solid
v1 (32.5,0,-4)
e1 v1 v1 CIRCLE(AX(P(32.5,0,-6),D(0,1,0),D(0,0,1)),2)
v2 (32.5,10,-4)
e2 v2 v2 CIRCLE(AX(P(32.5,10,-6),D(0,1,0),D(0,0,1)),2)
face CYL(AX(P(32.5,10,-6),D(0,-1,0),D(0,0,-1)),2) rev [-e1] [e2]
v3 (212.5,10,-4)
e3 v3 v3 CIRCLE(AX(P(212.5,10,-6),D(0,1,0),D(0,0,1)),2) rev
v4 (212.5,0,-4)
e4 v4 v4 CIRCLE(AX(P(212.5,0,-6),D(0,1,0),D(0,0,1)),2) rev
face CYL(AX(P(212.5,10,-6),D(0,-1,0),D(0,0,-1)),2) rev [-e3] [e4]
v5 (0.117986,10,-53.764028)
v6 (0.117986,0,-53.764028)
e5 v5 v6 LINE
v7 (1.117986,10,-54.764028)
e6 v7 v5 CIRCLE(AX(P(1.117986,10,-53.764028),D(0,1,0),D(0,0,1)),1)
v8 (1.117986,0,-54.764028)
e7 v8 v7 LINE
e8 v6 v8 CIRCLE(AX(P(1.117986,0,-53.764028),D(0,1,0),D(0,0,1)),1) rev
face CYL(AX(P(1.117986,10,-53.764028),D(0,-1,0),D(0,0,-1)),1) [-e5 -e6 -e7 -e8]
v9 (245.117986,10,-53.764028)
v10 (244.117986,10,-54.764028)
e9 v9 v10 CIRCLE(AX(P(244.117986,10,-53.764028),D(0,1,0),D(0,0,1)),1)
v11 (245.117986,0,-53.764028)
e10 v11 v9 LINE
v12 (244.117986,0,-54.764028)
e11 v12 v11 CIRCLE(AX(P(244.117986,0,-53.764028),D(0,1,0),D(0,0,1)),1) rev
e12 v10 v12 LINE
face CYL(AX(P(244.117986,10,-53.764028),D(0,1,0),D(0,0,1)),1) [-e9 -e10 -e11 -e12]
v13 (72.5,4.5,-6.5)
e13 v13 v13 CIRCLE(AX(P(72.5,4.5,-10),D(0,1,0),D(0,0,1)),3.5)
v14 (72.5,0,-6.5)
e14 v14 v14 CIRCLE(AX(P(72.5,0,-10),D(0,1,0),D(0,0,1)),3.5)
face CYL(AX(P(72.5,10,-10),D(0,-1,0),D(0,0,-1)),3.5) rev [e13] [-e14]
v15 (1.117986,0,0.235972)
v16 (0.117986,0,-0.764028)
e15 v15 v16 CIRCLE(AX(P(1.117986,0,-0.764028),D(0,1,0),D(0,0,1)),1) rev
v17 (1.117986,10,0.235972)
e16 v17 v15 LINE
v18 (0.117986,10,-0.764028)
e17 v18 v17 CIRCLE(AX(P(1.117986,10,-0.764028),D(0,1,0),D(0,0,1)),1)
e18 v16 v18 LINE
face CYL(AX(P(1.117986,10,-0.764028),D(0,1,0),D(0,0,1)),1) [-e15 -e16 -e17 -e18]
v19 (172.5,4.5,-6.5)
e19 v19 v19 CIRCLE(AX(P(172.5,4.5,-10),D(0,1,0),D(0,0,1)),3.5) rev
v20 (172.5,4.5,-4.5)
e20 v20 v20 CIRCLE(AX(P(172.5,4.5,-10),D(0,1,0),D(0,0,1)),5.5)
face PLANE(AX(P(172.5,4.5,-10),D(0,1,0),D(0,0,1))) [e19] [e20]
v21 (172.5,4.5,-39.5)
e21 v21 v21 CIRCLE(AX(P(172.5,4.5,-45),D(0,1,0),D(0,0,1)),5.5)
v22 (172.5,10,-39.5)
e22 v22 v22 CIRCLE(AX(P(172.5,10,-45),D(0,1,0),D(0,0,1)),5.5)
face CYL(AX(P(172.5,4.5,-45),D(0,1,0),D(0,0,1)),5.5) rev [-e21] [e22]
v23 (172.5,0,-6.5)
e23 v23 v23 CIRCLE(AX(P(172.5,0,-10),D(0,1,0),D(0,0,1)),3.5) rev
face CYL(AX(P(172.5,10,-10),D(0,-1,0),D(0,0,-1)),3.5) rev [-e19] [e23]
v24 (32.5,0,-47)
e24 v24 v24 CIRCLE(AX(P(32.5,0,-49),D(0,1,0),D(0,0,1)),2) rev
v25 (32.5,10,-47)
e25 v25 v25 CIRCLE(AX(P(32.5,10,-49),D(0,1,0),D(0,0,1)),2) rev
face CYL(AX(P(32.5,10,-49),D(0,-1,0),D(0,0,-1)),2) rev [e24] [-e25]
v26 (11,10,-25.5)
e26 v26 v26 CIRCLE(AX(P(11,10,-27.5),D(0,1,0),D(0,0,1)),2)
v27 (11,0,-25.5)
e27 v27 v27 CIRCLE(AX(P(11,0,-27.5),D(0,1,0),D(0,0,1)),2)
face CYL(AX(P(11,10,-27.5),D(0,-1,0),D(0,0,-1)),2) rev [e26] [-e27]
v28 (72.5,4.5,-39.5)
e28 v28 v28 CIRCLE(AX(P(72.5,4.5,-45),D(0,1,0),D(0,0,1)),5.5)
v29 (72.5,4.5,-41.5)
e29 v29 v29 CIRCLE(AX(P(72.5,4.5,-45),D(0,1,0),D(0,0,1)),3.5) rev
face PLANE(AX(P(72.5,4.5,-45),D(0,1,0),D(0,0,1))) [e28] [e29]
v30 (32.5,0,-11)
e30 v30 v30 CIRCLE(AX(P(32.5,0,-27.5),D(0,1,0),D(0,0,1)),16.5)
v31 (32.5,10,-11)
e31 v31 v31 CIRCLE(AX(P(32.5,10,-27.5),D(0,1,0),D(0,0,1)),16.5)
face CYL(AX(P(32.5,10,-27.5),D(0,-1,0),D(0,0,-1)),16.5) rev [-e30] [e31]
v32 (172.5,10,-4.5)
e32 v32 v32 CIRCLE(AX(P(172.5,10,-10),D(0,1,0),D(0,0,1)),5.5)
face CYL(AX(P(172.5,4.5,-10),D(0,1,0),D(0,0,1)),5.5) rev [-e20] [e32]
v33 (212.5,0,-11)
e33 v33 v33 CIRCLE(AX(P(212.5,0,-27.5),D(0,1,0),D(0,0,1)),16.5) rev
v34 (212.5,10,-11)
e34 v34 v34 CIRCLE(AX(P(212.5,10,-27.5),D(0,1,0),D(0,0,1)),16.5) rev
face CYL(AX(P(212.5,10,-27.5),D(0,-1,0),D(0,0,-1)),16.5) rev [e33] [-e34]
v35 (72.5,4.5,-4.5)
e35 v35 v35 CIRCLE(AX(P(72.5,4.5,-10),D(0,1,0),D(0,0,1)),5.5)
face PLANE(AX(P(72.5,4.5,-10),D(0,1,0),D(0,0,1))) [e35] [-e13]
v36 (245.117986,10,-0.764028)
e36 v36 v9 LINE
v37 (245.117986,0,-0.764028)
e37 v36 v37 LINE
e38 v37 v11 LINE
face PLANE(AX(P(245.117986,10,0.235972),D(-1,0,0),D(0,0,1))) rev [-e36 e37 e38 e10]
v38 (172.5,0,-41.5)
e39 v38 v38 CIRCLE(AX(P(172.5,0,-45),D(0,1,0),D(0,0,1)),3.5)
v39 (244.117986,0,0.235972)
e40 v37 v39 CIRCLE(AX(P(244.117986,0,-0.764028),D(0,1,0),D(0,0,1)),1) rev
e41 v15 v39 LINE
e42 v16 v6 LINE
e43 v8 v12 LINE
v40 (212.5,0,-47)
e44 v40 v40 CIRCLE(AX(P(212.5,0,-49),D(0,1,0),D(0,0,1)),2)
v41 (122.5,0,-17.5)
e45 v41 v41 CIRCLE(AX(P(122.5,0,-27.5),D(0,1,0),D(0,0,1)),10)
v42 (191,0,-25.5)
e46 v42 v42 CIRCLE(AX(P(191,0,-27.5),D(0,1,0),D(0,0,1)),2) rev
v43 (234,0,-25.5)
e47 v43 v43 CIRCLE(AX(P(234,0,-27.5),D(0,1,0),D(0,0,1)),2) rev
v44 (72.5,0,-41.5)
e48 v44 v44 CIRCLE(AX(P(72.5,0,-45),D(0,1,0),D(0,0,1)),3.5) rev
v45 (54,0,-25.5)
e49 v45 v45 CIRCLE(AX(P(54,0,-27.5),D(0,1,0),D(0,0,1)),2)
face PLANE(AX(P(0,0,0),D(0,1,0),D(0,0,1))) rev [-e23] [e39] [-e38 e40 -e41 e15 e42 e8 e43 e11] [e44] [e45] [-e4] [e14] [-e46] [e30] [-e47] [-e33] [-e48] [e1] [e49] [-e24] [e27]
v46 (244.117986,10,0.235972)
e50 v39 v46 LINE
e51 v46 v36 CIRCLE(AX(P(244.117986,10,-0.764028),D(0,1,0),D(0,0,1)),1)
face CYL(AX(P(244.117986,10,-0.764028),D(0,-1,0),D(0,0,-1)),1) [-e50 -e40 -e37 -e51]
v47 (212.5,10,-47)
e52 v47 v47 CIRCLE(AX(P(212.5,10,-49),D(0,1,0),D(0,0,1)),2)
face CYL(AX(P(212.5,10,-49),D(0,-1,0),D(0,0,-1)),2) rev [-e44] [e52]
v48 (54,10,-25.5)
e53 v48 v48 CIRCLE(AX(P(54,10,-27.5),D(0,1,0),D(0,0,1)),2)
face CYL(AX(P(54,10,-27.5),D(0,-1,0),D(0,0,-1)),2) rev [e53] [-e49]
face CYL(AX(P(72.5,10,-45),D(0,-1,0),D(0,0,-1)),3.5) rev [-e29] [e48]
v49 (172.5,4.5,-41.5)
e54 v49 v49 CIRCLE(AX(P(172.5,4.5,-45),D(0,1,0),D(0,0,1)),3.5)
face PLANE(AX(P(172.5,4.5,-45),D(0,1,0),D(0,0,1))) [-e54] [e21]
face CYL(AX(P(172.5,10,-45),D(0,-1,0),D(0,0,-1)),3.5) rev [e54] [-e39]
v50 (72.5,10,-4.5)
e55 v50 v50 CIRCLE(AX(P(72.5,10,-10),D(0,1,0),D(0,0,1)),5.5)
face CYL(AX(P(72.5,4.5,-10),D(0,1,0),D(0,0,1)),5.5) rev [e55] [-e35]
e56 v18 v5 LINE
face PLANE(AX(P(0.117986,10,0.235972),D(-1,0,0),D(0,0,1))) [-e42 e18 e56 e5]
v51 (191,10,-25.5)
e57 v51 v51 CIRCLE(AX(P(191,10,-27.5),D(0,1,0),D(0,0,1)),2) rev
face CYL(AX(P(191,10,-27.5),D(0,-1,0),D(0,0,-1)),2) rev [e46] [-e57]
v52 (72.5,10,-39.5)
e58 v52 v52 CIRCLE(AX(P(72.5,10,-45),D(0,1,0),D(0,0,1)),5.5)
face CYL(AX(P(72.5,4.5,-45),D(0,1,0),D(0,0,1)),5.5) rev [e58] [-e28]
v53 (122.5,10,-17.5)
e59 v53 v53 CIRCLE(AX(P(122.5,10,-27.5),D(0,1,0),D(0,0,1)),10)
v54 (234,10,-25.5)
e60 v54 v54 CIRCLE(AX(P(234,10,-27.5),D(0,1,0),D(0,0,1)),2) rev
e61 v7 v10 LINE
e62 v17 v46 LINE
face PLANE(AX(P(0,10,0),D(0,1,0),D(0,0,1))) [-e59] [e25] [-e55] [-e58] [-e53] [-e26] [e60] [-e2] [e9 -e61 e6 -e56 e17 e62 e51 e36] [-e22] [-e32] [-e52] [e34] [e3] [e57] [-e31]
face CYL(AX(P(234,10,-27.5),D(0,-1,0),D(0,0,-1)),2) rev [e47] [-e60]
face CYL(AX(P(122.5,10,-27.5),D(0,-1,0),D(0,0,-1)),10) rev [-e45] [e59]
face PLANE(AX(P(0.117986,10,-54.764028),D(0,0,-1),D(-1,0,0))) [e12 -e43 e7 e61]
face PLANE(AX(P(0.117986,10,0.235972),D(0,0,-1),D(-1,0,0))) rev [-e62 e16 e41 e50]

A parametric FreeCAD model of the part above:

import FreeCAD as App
import Part
import Sketcher
from FreeCAD import Vector


def edges_at(feature, points):
    """Names of the edges that pass closest to the given points."""
    edges = feature.Shape.Edges
    near = lambda p: min(range(len(edges)), key=lambda i: edges[i].distToShape(Part.Vertex(*p))[0])
    return sorted({f"Edge{near(p) + 1}" for p in points})


def add_polygon(sketch, points):
    """Adds a closed chain of lines whose ends are joined by coincident constraints."""
    first, n = sketch.GeometryCount, len(points)
    for a, b in zip(points, points[1:] + points[:1]):
        sketch.addGeometry(Part.LineSegment(App.Vector(*a, 0), App.Vector(*b, 0)), False)
    for i in range(n):
        sketch.addConstraint(Sketcher.Constraint("Coincident", first + i, 2, first + (i + 1) % n, 1))

doc = App.newDocument("Part")
body = doc.addObject("PartDesign::Body", "Body")

# Sketch on XZ plane
sketch1 = body.newObject("Sketcher::SketchObject", "Sketch")
sketch1.AttachmentSupport = (doc.getObject("XZ_Plane"), [""])
sketch1.MapMode = "FlatFace"
add_polygon(sketch1, [(0.1, -54.8), (0.1, 0.2), (245.1, 0.2), (245.1, -54.8)])  # lines 0-3
sketch1.addGeometry(Part.Circle(Vector(32.5, -6, 0), Vector(0, 0, 1), 2), False)  # 4
sketch1.addGeometry(Part.Circle(Vector(72.5, -10, 0), Vector(0, 0, 1), 3.5), False)  # 5
sketch1.addGeometry(Part.Circle(Vector(172.5, -10, 0), Vector(0, 0, 1), 3.5), False)  # 6
sketch1.addGeometry(Part.Circle(Vector(212.5, -6, 0), Vector(0, 0, 1), 2), False)  # 7
sketch1.addGeometry(Part.Circle(Vector(11, -27.5, 0), Vector(0, 0, 1), 2), False)  # 8
sketch1.addGeometry(Part.Circle(Vector(32.5, -27.5, 0), Vector(0, 0, 1), 16.5), False)  # 9
sketch1.addGeometry(Part.Circle(Vector(54, -27.5, 0), Vector(0, 0, 1), 2), False)  # 10
sketch1.addGeometry(Part.Circle(Vector(32.5, -49, 0), Vector(0, 0, 1), 2), False)  # 11
sketch1.addGeometry(Part.Circle(Vector(72.5, -45, 0), Vector(0, 0, 1), 3.5), False)  # 12
sketch1.addGeometry(Part.Circle(Vector(122.5, -27.5, 0), Vector(0, 0, 1), 10), False)  # 13
sketch1.addGeometry(Part.Circle(Vector(191, -27.5, 0), Vector(0, 0, 1), 2), False)  # 14
sketch1.addGeometry(Part.Circle(Vector(212.5, -27.5, 0), Vector(0, 0, 1), 16.5), False)  # 15
sketch1.addGeometry(Part.Circle(Vector(234, -27.5, 0), Vector(0, 0, 1), 2), False)  # 16
sketch1.addGeometry(Part.Circle(Vector(172.5, -45, 0), Vector(0, 0, 1), 3.5), False)  # 17
sketch1.addGeometry(Part.Circle(Vector(212.5, -49, 0), Vector(0, 0, 1), 2), False)  # 18
sketch1.addConstraint(Sketcher.Constraint("Vertical", 0))
sketch1.addConstraint(Sketcher.Constraint("Horizontal", 1))
sketch1.addConstraint(Sketcher.Constraint("Vertical", 2))
sketch1.addConstraint(Sketcher.Constraint("Horizontal", 3))
sketch1.addConstraint(Sketcher.Constraint("Equal", 5, 6))
sketch1.addConstraint(Sketcher.Constraint("Equal", 4, 7))
sketch1.addConstraint(Sketcher.Constraint("Equal", 7, 8))
sketch1.addConstraint(Sketcher.Constraint("Equal", 8, 10))
sketch1.addConstraint(Sketcher.Constraint("Equal", 10, 11))
sketch1.addConstraint(Sketcher.Constraint("Equal", 6, 12))
sketch1.addConstraint(Sketcher.Constraint("Equal", 11, 14))
sketch1.addConstraint(Sketcher.Constraint("Equal", 9, 15))
sketch1.addConstraint(Sketcher.Constraint("Equal", 14, 16))
sketch1.addConstraint(Sketcher.Constraint("Equal", 12, 17))
sketch1.addConstraint(Sketcher.Constraint("Equal", 16, 18))
sketch1.addConstraint(Sketcher.Constraint("Horizontal", 5, 3, 6, 3))
sketch1.addConstraint(Sketcher.Constraint("Horizontal", 4, 3, 7, 3))
sketch1.addConstraint(Sketcher.Constraint("Horizontal", 8, 3, 9, 3))
sketch1.addConstraint(Sketcher.Constraint("Horizontal", 9, 3, 10, 3))
sketch1.addConstraint(Sketcher.Constraint("Horizontal", 10, 3, 13, 3))
sketch1.addConstraint(Sketcher.Constraint("Horizontal", 13, 3, 14, 3))
sketch1.addConstraint(Sketcher.Constraint("Horizontal", 14, 3, 15, 3))
sketch1.addConstraint(Sketcher.Constraint("Horizontal", 15, 3, 16, 3))
sketch1.addConstraint(Sketcher.Constraint("Horizontal", 12, 3, 17, 3))
sketch1.addConstraint(Sketcher.Constraint("Horizontal", 11, 3, 18, 3))
sketch1.addConstraint(Sketcher.Constraint("Vertical", 4, 3, 9, 3))
sketch1.addConstraint(Sketcher.Constraint("Vertical", 9, 3, 11, 3))
sketch1.addConstraint(Sketcher.Constraint("Vertical", 5, 3, 12, 3))
sketch1.addConstraint(Sketcher.Constraint("Vertical", 7, 3, 15, 3))
sketch1.addConstraint(Sketcher.Constraint("Vertical", 6, 3, 17, 3))
sketch1.addConstraint(Sketcher.Constraint("Vertical", 15, 3, 18, 3))
sketch1.addConstraint(Sketcher.Constraint("Diameter", 4, 4.0))
sketch1.addConstraint(Sketcher.Constraint("Diameter", 5, 7.0))
sketch1.addConstraint(Sketcher.Constraint("Diameter", 9, 33.0))
sketch1.addConstraint(Sketcher.Constraint("Diameter", 13, 20.0))
sketch1.addConstraint(Sketcher.Constraint("DistanceX", 1, 1, 1, 2, 245.0))
sketch1.addConstraint(Sketcher.Constraint("DistanceY", 0, 1, 0, 2, 55.0))
sketch1.addConstraint(Sketcher.Constraint("DistanceY", 4, 3, -1, 1, 6.0))
sketch1.addConstraint(Sketcher.Constraint("DistanceY", 5, 3, -1, 1, 10.0))
sketch1.addConstraint(Sketcher.Constraint("DistanceX", -1, 1, 8, 3, 11.0))
sketch1.addConstraint(Sketcher.Constraint("DistanceX", -1, 1, 10, 3, 54.0))
sketch1.addConstraint(Sketcher.Constraint("DistanceY", 11, 3, -1, 1, 49.0))
sketch1.addConstraint(Sketcher.Constraint("DistanceY", 12, 3, -1, 1, 45.0))
sketch1.addConstraint(Sketcher.Constraint("DistanceX", -1, 1, 14, 3, 191.0))
sketch1.addConstraint(Sketcher.Constraint("DistanceX", -1, 1, 16, 3, 234.0))
sketch1.addConstraint(Sketcher.Constraint("DistanceX", 4, 3, 5, 3, 40.0))
sketch1.addConstraint(Sketcher.Constraint("DistanceX", 5, 3, 6, 3, 100.0))
sketch1.addConstraint(Sketcher.Constraint("DistanceX", 6, 3, 7, 3, 40.0))
sketch1.addConstraint(Sketcher.Constraint("DistanceX", 5, 3, 13, 3, 50.0))
sketch1.addConstraint(Sketcher.Constraint("DistanceX", -1, 1, 4, 3, 32.5))
sketch1.addConstraint(Sketcher.Constraint("DistanceY", 8, 3, -1, 1, 27.5))
sketch1.addConstraint(Sketcher.Constraint("DistanceX", -1, 1, 0, 2, 0.117986))
sketch1.addConstraint(Sketcher.Constraint("DistanceY", -1, 1, 0, 2, 0.235972))
pad1 = body.newObject("PartDesign::Pad", "Pad")
pad1.Profile = sketch1
pad1.Length = 10
pad1.Reversed = True

# Sketch on XZ plane
sketch2 = body.newObject("Sketcher::SketchObject", "Sketch001")
sketch2.AttachmentSupport = (doc.getObject("XZ_Plane"), [""])
sketch2.MapMode = "FlatFace"
sketch2.AttachmentOffset = App.Placement(Vector(0, 0, -10), App.Rotation())
sketch2.addGeometry(Part.Circle(Vector(72, -45, 0), Vector(0, 0, 1), 6), False)
sketch2.addGeometry(Part.Circle(Vector(72, -10, 0), Vector(0, 0, 1), 6), False)
sketch2.addGeometry(Part.Circle(Vector(172, -45, 0), Vector(0, 0, 1), 6), False)
sketch2.addGeometry(Part.Circle(Vector(172, -10, 0), Vector(0, 0, 1), 6), False)
sketch2.addConstraint(Sketcher.Constraint("Equal", 0, 1))
sketch2.addConstraint(Sketcher.Constraint("Equal", 1, 2))
sketch2.addConstraint(Sketcher.Constraint("Equal", 2, 3))
sketch2.addConstraint(Sketcher.Constraint("Horizontal", 0, 3, 2, 3))
sketch2.addConstraint(Sketcher.Constraint("Horizontal", 1, 3, 3, 3))
sketch2.addConstraint(Sketcher.Constraint("Vertical", 0, 3, 1, 3))
sketch2.addConstraint(Sketcher.Constraint("Vertical", 2, 3, 3, 3))
sketch2.addConstraint(Sketcher.Constraint("Diameter", 0, 11.0))
sketch2.addConstraint(Sketcher.Constraint("DistanceY", 0, 3, -1, 1, 45.0))
sketch2.addConstraint(Sketcher.Constraint("DistanceY", 1, 3, -1, 1, 10.0))
sketch2.addConstraint(Sketcher.Constraint("DistanceX", 0, 3, 2, 3, 100.0))
sketch2.addConstraint(Sketcher.Constraint("DistanceX", -1, 1, 0, 3, 72.5))
pocket1 = body.newObject("PartDesign::Pocket", "Pocket")
pocket1.Profile = sketch2
pocket1.Length = 5.5
pocket1.Reversed = True
doc.recompute()

fillet = body.newObject("PartDesign::Fillet", "Fillet")
fillet.Base = (pocket1, edges_at(pocket1, [
    (0.118, 5, -54.764),
    (0.118, 5, 0.236),
    (245.118, 5, 0.236),
    (245.118, 5, -54.764),
]))
fillet.Radius = 1

doc.recompute()
